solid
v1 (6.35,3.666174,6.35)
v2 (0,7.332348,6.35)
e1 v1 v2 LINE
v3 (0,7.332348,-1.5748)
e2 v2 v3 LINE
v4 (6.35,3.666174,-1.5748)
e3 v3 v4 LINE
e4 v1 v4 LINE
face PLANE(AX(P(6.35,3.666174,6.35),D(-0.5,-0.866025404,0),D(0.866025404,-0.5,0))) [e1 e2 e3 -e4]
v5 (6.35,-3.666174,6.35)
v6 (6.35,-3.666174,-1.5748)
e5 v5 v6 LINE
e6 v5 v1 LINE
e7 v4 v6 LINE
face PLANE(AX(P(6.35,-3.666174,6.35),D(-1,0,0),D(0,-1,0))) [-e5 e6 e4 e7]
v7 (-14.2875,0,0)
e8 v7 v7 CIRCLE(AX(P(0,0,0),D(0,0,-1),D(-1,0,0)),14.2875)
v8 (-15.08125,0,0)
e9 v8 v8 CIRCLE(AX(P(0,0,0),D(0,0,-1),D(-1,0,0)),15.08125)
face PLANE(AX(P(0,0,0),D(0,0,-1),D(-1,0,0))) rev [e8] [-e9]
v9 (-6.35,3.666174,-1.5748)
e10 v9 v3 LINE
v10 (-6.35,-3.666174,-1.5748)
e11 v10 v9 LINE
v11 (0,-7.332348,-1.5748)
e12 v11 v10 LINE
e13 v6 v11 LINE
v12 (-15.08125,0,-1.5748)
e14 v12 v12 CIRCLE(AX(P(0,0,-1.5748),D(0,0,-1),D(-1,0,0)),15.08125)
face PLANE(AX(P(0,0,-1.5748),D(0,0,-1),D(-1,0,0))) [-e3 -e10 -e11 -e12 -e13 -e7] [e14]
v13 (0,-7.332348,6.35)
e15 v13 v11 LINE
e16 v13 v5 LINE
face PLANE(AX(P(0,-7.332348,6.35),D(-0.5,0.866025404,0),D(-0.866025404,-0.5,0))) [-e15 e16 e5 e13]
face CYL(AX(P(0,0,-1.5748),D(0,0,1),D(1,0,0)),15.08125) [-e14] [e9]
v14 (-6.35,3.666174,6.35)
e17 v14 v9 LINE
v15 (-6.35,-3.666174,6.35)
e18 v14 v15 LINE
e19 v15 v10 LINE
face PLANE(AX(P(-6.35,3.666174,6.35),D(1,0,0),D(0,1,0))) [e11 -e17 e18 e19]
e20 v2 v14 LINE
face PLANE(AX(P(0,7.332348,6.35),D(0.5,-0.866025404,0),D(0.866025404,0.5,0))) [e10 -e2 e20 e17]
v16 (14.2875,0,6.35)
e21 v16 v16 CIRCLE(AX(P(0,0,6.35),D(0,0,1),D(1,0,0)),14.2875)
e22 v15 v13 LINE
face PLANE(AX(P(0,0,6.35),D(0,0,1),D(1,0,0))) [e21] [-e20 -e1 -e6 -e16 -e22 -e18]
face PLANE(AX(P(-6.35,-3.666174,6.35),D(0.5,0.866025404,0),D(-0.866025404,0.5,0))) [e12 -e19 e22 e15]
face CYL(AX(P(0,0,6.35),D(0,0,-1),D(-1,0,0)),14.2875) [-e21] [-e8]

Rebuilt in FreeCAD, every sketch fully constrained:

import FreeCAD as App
import Part
import Sketcher
from FreeCAD import Vector
Q = App.Units.Quantity

doc = App.newDocument("Part")
body = doc.addObject("PartDesign::Body", "Body")

# Sketch on XY plane
sketch1 = doc.addObject("Sketcher::SketchObject", "Sketch")
body.addObject(sketch1)
sketch1.AttachmentSupport = (doc.XY_Plane, [""])
sketch1.MapMode = "FlatFace"
sketch1.addGeometry([
    Part.Circle(Vector(0, 0, 0), Vector(0, 0, 1), 14),  # 0
    Part.LineSegment(Vector(0, 7, 0), Vector(6, 4, 0)),  # 1
    Part.LineSegment(Vector(6, 4, 0), Vector(6, -4, 0)),  # 2
    Part.LineSegment(Vector(6, -4, 0), Vector(0, -7, 0)),  # 3
    Part.LineSegment(Vector(0, -7, 0), Vector(-6, -4, 0)),  # 4
    Part.LineSegment(Vector(-6, -4, 0), Vector(-6, 4, 0)),  # 5
    Part.LineSegment(Vector(-6, 4, 0), Vector(0, 7, 0)),  # 6
], False)
sketch1.addConstraint([
    Sketcher.Constraint("Coincident", 1, 2, 2, 1),
    Sketcher.Constraint("Coincident", 2, 2, 3, 1),
    Sketcher.Constraint("Coincident", 3, 2, 4, 1),
    Sketcher.Constraint("Coincident", 4, 2, 5, 1),
    Sketcher.Constraint("Coincident", 5, 2, 6, 1),
    Sketcher.Constraint("Coincident", 6, 2, 1, 1),
    Sketcher.Constraint("Vertical", 2),
    Sketcher.Constraint("Vertical", 5),
    Sketcher.Constraint("Coincident", 0, 3, -1, 1),
    Sketcher.Constraint("Symmetric", 1, 2, 4, 2, -1, 1),
    Sketcher.Constraint("Symmetric", 3, 2, 6, 2, -1, 1),
    Sketcher.Constraint("PointOnObject", 3, 2, -2),
    Sketcher.Constraint("Parallel", 3, 6),
    Sketcher.Constraint("Horizontal", 2, 2, 4, 2),
    Sketcher.Constraint("Diameter", 0, Q("1.125 in")),
    Sketcher.Constraint("Angle", 1, Q("-30 deg")),
    Sketcher.Constraint("DistanceX", 4, 2, 2, 2, Q("0.5 in")),
    Sketcher.Constraint("DistanceY", 2, 2, 2, 1, 7.332348),
])
pad1 = doc.addObject("PartDesign::Pad", "Pad")
body.addObject(pad1)
pad1.Profile = sketch1
pad1.Length = Q("0.25 in")

# Sketch on XY plane
sketch2 = doc.addObject("Sketcher::SketchObject", "Sketch001")
body.addObject(sketch2)
sketch2.AttachmentSupport = (doc.XY_Plane, [""])
sketch2.MapMode = "FlatFace"
sketch2.addGeometry([
    Part.Circle(Vector(0, 0, 0), Vector(0, 0, 1), 15),  # 0
    Part.LineSegment(Vector(6, 4, 0), Vector(0, 7, 0)),  # 1
    Part.LineSegment(Vector(0, 7, 0), Vector(-6, 4, 0)),  # 2
    Part.LineSegment(Vector(-6, 4, 0), Vector(-6, -4, 0)),  # 3
    Part.LineSegment(Vector(-6, -4, 0), Vector(0, -7, 0)),  # 4
    Part.LineSegment(Vector(0, -7, 0), Vector(6, -4, 0)),  # 5
    Part.LineSegment(Vector(6, -4, 0), Vector(6, 4, 0)),  # 6
], False)
sketch2.addConstraint([
    Sketcher.Constraint("Coincident", 1, 2, 2, 1),
    Sketcher.Constraint("Coincident", 2, 2, 3, 1),
    Sketcher.Constraint("Coincident", 3, 2, 4, 1),
    Sketcher.Constraint("Coincident", 4, 2, 5, 1),
    Sketcher.Constraint("Coincident", 5, 2, 6, 1),
    Sketcher.Constraint("Coincident", 6, 2, 1, 1),
    Sketcher.Constraint("Vertical", 3),
    Sketcher.Constraint("Vertical", 6),
    Sketcher.Constraint("Coincident", 0, 3, -1, 1),
    Sketcher.Constraint("Symmetric", 1, 2, 4, 2, -1, 1),
    Sketcher.Constraint("Symmetric", 2, 2, 5, 2, -1, 1),
    Sketcher.Constraint("PointOnObject", 1, 2, -2),
    Sketcher.Constraint("Parallel", 1, 4),
    Sketcher.Constraint("Horizontal", 3, 2, 5, 2),
    Sketcher.Constraint("Diameter", 0, Q("1.1875 in")),
    Sketcher.Constraint("Angle", 1, Q("150 deg")),
    Sketcher.Constraint("DistanceX", 3, 2, 5, 2, Q("0.5 in")),
    Sketcher.Constraint("DistanceY", 3, 2, 3, 1, 7.332348),
])
pad2 = doc.addObject("PartDesign::Pad", "Pad001")
body.addObject(pad2)
pad2.Profile = sketch2
pad2.Length = Q("0.062 in")
pad2.Reversed = True

doc.recompute()
